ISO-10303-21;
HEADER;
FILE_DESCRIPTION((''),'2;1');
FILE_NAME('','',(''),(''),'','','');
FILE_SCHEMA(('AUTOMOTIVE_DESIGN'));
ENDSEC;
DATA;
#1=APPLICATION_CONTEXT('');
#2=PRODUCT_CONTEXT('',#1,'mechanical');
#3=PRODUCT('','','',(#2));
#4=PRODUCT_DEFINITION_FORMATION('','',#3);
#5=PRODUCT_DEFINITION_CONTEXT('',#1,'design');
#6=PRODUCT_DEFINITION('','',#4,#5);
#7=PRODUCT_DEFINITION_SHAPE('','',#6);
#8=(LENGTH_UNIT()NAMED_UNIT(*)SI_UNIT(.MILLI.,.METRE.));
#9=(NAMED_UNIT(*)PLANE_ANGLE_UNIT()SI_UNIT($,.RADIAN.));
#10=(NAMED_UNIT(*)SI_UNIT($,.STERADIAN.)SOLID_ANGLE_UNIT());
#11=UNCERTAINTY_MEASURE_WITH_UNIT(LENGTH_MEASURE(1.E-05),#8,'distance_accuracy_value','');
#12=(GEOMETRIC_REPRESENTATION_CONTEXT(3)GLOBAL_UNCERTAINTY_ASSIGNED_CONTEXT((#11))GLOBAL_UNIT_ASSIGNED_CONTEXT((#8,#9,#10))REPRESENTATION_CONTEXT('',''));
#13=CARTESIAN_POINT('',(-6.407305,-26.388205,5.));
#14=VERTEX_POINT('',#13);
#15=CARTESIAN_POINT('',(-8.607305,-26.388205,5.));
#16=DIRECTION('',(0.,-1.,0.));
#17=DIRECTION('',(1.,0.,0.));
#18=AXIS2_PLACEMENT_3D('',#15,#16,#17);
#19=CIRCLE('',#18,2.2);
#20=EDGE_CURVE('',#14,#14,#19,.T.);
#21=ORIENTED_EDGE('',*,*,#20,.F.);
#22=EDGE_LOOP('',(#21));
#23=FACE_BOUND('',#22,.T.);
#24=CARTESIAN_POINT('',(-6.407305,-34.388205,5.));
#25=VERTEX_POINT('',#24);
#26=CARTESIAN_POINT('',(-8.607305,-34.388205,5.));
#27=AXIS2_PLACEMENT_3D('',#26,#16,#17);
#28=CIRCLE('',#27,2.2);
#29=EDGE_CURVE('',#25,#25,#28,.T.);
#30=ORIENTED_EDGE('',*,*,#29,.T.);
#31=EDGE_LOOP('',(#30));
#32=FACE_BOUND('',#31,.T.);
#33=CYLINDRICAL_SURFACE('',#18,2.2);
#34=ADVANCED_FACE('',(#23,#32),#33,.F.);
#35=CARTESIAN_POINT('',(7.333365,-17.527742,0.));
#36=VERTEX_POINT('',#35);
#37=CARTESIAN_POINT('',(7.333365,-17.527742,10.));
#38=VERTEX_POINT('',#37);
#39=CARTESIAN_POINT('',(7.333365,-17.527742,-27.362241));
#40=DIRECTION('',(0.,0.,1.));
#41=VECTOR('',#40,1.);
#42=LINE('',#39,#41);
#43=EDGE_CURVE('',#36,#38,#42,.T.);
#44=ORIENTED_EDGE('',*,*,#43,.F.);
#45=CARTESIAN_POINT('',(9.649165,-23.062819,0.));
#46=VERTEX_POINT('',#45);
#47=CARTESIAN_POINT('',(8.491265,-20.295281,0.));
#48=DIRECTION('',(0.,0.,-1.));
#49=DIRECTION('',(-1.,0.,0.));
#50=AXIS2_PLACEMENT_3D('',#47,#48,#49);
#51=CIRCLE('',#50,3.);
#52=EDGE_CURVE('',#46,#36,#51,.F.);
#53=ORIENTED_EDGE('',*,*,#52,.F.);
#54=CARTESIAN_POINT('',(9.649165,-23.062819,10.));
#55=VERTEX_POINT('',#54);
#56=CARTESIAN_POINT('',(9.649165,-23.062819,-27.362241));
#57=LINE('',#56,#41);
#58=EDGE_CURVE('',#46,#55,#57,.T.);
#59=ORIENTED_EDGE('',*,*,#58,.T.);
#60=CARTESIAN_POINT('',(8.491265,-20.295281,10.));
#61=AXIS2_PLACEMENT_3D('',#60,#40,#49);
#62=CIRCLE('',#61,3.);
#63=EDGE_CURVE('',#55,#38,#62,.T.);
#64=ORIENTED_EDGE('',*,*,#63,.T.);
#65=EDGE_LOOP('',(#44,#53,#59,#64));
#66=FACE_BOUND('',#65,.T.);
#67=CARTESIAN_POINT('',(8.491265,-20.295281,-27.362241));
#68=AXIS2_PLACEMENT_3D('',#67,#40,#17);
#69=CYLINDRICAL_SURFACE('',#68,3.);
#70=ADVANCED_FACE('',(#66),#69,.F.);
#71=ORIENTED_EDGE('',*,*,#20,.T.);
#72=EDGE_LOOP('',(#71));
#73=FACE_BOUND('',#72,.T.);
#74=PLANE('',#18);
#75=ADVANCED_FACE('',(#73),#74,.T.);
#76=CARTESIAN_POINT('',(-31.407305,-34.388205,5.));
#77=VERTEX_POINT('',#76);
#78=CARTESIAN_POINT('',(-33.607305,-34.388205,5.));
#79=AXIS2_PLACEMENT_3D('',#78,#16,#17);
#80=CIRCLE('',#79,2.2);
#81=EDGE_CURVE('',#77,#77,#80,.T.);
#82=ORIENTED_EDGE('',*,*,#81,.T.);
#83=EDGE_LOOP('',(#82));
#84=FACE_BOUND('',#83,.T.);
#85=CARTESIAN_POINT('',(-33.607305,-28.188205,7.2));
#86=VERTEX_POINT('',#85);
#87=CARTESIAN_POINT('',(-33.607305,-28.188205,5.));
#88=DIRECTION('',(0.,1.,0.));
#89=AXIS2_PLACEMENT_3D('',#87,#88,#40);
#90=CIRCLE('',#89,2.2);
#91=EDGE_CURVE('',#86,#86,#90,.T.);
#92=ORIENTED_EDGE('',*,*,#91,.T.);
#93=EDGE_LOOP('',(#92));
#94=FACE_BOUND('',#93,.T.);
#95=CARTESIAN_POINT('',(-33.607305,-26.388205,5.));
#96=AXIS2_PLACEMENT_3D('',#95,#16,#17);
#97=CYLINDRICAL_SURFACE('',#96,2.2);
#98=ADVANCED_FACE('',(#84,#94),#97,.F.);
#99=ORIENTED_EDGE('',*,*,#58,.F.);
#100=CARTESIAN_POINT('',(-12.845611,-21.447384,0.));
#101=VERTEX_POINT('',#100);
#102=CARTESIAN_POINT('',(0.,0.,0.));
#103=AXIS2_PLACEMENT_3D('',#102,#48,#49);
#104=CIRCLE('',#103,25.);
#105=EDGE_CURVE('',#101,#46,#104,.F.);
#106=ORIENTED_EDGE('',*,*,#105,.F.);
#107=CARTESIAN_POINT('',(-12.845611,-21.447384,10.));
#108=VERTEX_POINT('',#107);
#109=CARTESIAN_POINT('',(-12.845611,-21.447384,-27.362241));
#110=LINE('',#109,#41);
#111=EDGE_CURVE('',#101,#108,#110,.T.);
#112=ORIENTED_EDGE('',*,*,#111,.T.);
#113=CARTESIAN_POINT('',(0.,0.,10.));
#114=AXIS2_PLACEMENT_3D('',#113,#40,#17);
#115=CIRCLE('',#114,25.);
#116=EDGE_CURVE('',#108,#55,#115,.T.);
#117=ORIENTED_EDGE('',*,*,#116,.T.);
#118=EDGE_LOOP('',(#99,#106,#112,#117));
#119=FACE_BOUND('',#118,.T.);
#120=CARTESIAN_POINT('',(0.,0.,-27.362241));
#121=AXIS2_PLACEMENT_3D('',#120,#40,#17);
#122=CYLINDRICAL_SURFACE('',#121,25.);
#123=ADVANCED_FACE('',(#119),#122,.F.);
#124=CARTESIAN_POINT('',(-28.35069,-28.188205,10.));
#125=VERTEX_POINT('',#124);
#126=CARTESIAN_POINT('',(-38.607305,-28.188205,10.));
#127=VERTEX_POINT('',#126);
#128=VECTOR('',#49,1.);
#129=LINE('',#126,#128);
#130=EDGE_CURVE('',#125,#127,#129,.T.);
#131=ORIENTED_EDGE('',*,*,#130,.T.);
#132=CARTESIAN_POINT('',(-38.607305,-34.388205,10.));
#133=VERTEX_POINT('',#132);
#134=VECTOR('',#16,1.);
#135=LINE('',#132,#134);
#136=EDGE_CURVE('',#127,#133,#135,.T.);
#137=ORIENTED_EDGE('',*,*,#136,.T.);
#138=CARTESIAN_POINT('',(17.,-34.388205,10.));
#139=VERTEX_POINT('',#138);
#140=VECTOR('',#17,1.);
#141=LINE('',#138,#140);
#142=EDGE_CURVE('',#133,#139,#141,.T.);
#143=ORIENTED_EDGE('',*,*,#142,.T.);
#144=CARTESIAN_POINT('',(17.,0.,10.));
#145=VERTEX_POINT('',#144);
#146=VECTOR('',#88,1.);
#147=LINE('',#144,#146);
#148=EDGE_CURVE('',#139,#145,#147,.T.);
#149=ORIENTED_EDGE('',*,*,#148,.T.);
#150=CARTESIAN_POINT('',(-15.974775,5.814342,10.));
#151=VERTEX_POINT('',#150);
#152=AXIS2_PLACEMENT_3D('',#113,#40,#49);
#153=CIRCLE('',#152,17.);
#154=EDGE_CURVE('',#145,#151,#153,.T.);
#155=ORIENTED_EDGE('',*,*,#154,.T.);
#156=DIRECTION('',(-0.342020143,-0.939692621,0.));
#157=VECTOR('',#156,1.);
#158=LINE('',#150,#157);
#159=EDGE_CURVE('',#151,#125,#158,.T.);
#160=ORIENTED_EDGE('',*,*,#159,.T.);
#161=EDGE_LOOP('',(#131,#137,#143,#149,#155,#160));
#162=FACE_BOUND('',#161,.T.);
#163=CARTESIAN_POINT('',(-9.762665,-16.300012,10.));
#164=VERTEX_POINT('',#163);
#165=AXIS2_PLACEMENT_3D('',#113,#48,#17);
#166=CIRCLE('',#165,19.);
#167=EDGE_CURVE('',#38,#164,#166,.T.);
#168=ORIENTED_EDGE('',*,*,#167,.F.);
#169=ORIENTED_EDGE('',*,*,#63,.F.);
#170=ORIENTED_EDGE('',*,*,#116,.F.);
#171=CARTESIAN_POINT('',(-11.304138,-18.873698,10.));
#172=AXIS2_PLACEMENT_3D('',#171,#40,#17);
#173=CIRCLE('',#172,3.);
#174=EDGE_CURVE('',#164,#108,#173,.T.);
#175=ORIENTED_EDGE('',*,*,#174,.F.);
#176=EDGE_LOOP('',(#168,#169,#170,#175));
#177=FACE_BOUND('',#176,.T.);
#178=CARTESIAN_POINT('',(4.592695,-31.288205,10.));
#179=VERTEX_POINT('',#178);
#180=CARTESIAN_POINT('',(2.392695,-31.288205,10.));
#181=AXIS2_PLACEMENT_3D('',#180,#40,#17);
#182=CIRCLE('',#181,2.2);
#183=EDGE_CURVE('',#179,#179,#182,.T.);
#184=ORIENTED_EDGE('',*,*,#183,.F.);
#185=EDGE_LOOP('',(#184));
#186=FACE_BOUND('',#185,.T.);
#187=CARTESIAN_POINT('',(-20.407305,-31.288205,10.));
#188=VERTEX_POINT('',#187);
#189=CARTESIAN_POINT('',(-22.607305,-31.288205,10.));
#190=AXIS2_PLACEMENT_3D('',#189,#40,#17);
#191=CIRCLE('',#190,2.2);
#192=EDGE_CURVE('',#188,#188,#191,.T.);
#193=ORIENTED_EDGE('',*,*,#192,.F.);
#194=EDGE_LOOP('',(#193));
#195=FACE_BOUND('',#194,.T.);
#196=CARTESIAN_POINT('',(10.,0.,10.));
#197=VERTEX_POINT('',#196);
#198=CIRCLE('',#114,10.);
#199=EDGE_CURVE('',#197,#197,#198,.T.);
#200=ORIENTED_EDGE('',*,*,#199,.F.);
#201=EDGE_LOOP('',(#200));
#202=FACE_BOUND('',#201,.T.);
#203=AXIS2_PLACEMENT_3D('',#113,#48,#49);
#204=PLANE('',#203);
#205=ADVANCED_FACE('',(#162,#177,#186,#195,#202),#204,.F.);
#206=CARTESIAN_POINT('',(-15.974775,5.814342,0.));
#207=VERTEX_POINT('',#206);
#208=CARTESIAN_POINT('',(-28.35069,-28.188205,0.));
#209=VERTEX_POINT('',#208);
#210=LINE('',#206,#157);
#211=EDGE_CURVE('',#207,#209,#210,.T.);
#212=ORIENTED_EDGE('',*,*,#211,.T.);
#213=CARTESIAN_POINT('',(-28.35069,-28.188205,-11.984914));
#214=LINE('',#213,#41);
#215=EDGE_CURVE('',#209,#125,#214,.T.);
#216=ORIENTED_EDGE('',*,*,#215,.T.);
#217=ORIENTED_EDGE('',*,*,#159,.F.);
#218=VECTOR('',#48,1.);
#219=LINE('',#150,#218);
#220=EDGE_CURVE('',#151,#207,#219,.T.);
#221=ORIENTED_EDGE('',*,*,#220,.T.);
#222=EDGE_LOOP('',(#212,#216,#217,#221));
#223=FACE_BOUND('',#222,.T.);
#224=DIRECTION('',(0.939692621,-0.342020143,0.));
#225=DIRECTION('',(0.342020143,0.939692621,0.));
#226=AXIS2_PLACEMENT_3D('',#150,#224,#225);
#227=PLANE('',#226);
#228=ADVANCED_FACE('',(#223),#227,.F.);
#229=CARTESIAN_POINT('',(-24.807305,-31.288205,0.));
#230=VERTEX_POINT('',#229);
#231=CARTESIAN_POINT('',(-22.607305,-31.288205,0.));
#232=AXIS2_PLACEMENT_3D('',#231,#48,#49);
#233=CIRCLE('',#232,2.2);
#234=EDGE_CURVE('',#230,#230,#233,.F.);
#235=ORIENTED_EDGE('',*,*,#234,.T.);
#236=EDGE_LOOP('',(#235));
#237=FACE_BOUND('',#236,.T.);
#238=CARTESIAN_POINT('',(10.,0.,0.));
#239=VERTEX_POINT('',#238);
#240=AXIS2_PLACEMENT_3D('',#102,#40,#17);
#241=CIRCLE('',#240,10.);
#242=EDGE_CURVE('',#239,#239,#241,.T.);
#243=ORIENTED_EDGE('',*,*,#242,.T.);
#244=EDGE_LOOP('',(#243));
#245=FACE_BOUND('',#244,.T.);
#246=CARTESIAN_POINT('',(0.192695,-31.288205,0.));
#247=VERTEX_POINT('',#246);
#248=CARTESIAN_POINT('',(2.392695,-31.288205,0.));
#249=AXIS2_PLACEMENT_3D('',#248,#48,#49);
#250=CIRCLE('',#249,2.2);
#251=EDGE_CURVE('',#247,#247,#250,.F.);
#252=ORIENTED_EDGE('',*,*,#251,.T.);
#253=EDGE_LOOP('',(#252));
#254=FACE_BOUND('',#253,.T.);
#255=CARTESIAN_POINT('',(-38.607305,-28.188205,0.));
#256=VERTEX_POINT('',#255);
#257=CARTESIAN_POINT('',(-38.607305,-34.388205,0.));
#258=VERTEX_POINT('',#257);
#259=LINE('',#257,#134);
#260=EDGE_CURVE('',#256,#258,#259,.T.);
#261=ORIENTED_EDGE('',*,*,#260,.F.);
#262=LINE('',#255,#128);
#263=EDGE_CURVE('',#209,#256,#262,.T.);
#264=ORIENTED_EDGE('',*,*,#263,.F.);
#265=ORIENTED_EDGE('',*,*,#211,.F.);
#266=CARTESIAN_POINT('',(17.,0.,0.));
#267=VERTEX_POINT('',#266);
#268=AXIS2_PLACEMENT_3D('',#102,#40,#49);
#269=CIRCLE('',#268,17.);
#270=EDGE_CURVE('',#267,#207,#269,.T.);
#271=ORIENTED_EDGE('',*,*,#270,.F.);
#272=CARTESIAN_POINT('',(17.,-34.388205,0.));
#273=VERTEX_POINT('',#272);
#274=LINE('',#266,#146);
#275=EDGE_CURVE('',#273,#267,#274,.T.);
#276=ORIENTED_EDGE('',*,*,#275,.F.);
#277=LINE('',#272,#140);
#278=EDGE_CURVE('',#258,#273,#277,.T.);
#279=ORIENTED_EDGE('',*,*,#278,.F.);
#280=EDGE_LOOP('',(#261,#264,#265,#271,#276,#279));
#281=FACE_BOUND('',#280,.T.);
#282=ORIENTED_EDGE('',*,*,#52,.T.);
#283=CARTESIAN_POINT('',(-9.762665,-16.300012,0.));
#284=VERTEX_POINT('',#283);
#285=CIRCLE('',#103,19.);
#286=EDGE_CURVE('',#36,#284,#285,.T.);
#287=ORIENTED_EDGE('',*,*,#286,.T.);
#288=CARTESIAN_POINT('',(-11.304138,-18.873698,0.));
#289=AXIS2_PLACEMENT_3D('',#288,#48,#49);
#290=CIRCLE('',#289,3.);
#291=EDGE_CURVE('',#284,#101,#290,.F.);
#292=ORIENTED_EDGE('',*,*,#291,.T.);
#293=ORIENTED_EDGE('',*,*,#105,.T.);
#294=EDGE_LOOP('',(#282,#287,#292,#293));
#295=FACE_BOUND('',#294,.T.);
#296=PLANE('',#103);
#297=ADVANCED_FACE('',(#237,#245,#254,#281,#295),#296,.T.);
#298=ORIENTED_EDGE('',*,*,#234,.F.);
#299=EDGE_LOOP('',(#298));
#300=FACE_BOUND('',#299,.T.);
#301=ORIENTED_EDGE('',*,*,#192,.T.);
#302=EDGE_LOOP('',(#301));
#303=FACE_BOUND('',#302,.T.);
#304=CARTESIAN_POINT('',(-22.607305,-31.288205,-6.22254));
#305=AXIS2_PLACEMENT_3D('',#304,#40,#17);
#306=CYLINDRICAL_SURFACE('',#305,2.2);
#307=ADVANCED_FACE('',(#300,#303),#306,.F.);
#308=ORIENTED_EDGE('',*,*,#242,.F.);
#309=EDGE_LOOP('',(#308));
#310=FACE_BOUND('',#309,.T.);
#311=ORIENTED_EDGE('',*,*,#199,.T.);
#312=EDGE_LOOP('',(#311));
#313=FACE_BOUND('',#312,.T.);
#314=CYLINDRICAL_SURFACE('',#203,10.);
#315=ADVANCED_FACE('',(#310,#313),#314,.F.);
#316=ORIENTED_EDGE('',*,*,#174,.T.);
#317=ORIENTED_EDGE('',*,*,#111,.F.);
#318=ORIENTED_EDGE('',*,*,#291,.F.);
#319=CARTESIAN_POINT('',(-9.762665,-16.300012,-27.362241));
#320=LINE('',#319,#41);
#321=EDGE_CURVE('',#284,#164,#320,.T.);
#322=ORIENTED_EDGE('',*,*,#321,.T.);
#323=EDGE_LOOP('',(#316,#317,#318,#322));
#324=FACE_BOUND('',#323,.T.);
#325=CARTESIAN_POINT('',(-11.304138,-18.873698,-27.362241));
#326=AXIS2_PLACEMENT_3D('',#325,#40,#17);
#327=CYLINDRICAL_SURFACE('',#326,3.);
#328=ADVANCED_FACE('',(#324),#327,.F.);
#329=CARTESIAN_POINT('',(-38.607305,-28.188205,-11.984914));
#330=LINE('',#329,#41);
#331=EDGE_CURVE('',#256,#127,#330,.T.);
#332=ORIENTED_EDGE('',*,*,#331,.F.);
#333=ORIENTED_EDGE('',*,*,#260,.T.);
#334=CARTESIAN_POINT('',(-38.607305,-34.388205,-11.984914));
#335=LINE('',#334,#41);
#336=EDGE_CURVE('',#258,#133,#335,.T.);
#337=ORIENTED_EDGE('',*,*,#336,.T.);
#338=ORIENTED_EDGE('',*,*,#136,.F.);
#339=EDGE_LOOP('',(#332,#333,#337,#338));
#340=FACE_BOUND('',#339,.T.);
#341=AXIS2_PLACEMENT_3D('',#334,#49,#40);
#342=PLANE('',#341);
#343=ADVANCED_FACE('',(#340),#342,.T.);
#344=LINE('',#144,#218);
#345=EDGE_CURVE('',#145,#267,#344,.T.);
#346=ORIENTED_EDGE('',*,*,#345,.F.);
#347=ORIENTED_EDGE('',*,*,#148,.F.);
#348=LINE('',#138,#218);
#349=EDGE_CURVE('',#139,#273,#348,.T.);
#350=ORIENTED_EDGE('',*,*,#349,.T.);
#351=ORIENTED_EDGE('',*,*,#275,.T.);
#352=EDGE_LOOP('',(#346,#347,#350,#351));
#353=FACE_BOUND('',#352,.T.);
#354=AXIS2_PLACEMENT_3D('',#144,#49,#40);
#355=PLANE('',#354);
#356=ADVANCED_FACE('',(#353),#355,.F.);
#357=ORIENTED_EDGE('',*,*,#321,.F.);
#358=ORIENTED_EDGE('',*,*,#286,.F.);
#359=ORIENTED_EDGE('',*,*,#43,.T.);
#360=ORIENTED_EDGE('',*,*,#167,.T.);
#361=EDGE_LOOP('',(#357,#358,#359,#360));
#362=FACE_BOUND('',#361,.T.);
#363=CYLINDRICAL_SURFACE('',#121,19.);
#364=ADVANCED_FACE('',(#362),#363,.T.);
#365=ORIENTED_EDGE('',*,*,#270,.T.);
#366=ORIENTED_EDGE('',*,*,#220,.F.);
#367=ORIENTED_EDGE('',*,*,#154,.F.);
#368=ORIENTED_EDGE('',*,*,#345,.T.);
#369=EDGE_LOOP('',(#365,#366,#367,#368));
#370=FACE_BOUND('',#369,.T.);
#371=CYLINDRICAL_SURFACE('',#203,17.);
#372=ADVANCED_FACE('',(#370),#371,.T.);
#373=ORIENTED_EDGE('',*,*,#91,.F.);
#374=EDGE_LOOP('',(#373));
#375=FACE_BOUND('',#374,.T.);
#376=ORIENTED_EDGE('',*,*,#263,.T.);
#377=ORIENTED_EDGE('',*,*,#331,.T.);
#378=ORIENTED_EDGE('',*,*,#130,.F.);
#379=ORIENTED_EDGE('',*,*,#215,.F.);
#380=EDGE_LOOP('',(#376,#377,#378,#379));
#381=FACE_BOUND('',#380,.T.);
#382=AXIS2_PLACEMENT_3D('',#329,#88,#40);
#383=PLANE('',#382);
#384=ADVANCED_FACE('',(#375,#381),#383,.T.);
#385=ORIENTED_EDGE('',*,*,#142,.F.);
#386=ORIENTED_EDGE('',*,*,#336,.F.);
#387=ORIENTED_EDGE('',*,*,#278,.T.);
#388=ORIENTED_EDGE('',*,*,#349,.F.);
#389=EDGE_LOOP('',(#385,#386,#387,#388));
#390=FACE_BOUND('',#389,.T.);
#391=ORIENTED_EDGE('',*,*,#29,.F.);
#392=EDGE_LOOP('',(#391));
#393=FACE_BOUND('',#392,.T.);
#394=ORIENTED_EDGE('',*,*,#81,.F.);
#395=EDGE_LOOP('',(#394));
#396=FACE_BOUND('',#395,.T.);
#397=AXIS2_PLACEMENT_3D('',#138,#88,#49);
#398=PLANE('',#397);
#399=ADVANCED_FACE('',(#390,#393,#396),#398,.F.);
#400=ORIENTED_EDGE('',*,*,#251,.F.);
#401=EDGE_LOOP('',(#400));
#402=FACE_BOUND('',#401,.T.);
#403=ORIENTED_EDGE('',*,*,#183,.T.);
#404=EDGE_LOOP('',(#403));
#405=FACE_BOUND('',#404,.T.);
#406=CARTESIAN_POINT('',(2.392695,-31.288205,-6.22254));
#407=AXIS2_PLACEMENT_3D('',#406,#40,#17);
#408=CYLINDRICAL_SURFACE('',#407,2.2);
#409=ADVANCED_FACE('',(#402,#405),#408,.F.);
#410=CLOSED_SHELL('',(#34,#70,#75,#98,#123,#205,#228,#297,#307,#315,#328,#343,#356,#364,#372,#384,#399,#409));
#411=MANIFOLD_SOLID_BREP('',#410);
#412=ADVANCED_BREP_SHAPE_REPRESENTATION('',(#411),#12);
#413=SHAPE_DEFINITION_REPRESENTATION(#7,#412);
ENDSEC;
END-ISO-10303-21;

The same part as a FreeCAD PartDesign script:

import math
import FreeCAD as App
import Part
import Sketcher

V = App.Vector
Q = App.Units.Quantity

doc = App.newDocument("Part")
body = doc.addObject("PartDesign::Body", "Body")

sketch1 = doc.addObject("Sketcher::SketchObject", "Sketch")
body.addObject(sketch1)
sketch1.AttachmentSupport = (doc.XY_Plane, [""])
sketch1.MapMode = "FlatFace"
sketch1.addGeometry(Part.LineSegment(V(17, -34, 0), V(17, 0, 0)), False)
sketch1.addGeometry(Part.ArcOfCircle(Part.Circle(V(0, 0, 0), V(0, 0, 1), 17), math.radians(0), math.radians(160)), False)
sketch1.addGeometry(Part.LineSegment(V(-16, 6, 0), V(-31, -34, 0)), False)
sketch1.addGeometry(Part.LineSegment(V(-31, -34, 0), V(17, -34, 0)), False)
sketch1.addGeometry(Part.Circle(V(0, 0, 0), V(0, 0, 1), 10), False)
sketch1.addConstraint(Sketcher.Constraint("Tangent", 0, 2, 1, 1))
sketch1.addConstraint(Sketcher.Constraint("Tangent", 1, 2, 2, 1))
sketch1.addConstraint(Sketcher.Constraint("Coincident", 2, 2, 3, 1))
sketch1.addConstraint(Sketcher.Constraint("Coincident", 3, 2, 0, 1))
sketch1.addConstraint(Sketcher.Constraint("Vertical", 0))
sketch1.addConstraint(Sketcher.Constraint("Horizontal", 3))
sketch1.addConstraint(Sketcher.Constraint("Coincident", 1, 3, -1, 1))
sketch1.addConstraint(Sketcher.Constraint("Coincident", 4, 3, -1, 1))
sketch1.addConstraint(Sketcher.Constraint("Diameter", 4, Q("20 mm")))
sketch1.addConstraint(Sketcher.Constraint("Radius", 1, Q("17 mm")))
sketch1.addConstraint(Sketcher.Constraint("Angle", 2, Q("-110 deg")))
sketch1.addConstraint(Sketcher.Constraint("DistanceX", 3, 1, 3, 2, Q("47.607305 mm")))
pad1 = doc.addObject("PartDesign::Pad", "Pad")
body.addObject(pad1)
pad1.Profile = sketch1
pad1.Length = 10

sketch2 = doc.addObject("Sketcher::SketchObject", "Sketch001")
body.addObject(sketch2)
sketch2.AttachmentSupport = (doc.XY_Plane, [""])
sketch2.MapMode = "FlatFace"
sketch2.AttachmentOffset = App.Placement(V(0, 0, 10), App.Rotation())
sketch2.addGeometry(Part.ArcOfCircle(Part.Circle(V(0, 0, 0), V(0, 0, 1), 19), math.radians(-121), math.radians(-67)), False)
sketch2.addGeometry(Part.ArcOfCircle(Part.Circle(V(-11.3, -18.9, 0), V(0, 0, 1), 3), math.radians(59), math.radians(239)), False)
sketch2.addGeometry(Part.ArcOfCircle(Part.Circle(V(0, 0, 0), V(0, 0, 1), 25), math.radians(-121), math.radians(-67)), False)
sketch2.addGeometry(Part.ArcOfCircle(Part.Circle(V(8.5, -20.3, 0), V(0, 0, 1), 3), math.radians(-67), math.radians(113)), False)
sketch2.addConstraint(Sketcher.Constraint("Tangent", 0, 1, 1, 1))
sketch2.addConstraint(Sketcher.Constraint("Tangent", 1, 2, 2, 1))
sketch2.addConstraint(Sketcher.Constraint("Tangent", 2, 2, 3, 1))
sketch2.addConstraint(Sketcher.Constraint("Tangent", 3, 2, 0, 2))
sketch2.addConstraint(Sketcher.Constraint("Coincident", 0, 3, -1, 1))
sketch2.addConstraint(Sketcher.Constraint("Coincident", 2, 3, -1, 1))
sketch2.addConstraint(Sketcher.Constraint("Radius", 0, Q("19 mm")))
sketch2.addConstraint(Sketcher.Constraint("Radius", 1, Q("3 mm")))
sketch2.addConstraint(Sketcher.Constraint("DistanceX", 3, 3, 2, 2, Q("1.1579 mm")))
sketch2.addConstraint(Sketcher.Constraint("DistanceY", 0, 1, -1, 1, Q("16.300012 mm")))
pocket1 = doc.addObject("PartDesign::Pocket", "Pocket")
body.addObject(pocket1)
pocket1.Profile = sketch2
pocket1.Length = 10

sketch3 = doc.addObject("Sketcher::SketchObject", "Sketch002")
body.addObject(sketch3)
sketch3.AttachmentSupport = (doc.XY_Plane, [""])
sketch3.MapMode = "FlatFace"
sketch3.AttachmentOffset = App.Placement(V(0, 0, 10), App.Rotation())
sketch3.addGeometry(Part.LineSegment(V(-39, -34, 0), V(-31, -34, 0)), False)
sketch3.addGeometry(Part.LineSegment(V(-31, -34, 0), V(-28, -28, 0)), False)
sketch3.addGeometry(Part.LineSegment(V(-28, -28, 0), V(-39, -28, 0)), False)
sketch3.addGeometry(Part.LineSegment(V(-39, -28, 0), V(-39, -34, 0)), False)
sketch3.addConstraint(Sketcher.Constraint("Coincident", 0, 2, 1, 1))
sketch3.addConstraint(Sketcher.Constraint("Coincident", 1, 2, 2, 1))
sketch3.addConstraint(Sketcher.Constraint("Coincident", 2, 2, 3, 1))
sketch3.addConstraint(Sketcher.Constraint("Coincident", 3, 2, 0, 1))
sketch3.addConstraint(Sketcher.Constraint("Horizontal", 0))
sketch3.addConstraint(Sketcher.Constraint("Horizontal", 2))
sketch3.addConstraint(Sketcher.Constraint("Vertical", 3))
sketch3.addConstraint(Sketcher.Constraint("DistanceX", 0, 1, 0, 2, Q("8 mm")))
sketch3.addConstraint(Sketcher.Constraint("Angle", 1, Q("70 deg")))
sketch3.addConstraint(Sketcher.Constraint("DistanceY", 3, 2, 3, 1, Q("6.2 mm")))
sketch3.addConstraint(Sketcher.Constraint("DistanceX", 1, 2, -1, 1, Q("28.35069 mm")))
sketch3.addConstraint(Sketcher.Constraint("DistanceY", 0, 2, -1, 1, Q("34.388205 mm")))
pad2 = doc.addObject("PartDesign::Pad", "Pad001")
body.addObject(pad2)
pad2.Profile = sketch3
pad2.Length = 10
pad2.Reversed = True

sketch4 = doc.addObject("Sketcher::SketchObject", "Sketch003")
body.addObject(sketch4)
sketch4.AttachmentSupport = (doc.XZ_Plane, [""])
sketch4.MapMode = "FlatFace"
sketch4.AttachmentOffset = App.Placement(V(0, 0, 34.388205), App.Rotation())
sketch4.addGeometry(Part.Circle(V(-33.6, 5, 0), V(0, 0, 1), 2.2), False)
sketch4.addGeometry(Part.Circle(V(-8.6, 5, 0), V(0, 0, 1), 2.2), False)
sketch4.addConstraint(Sketcher.Constraint("Equal", 0, 1))
sketch4.addConstraint(Sketcher.Constraint("Horizontal", 0, 3, 1, 3))
sketch4.addConstraint(Sketcher.Constraint("Diameter", 0, Q("4.4 mm")))
sketch4.addConstraint(Sketcher.Constraint("DistanceY", -1, 1, 0, 3, Q("5 mm")))
sketch4.addConstraint(Sketcher.Constraint("DistanceX", 0, 3, 1, 3, Q("25 mm")))
sketch4.addConstraint(Sketcher.Constraint("DistanceX", 0, 3, -1, 1, Q("33.607305 mm")))
pocket2 = doc.addObject("PartDesign::Pocket", "Pocket001")
body.addObject(pocket2)
pocket2.Profile = sketch4
pocket2.Length = 8

sketch5 = doc.addObject("Sketcher::SketchObject", "Sketch004")
body.addObject(sketch5)
sketch5.AttachmentSupport = (doc.XY_Plane, [""])
sketch5.MapMode = "FlatFace"
sketch5.AttachmentOffset = App.Placement(V(0, 0, 10), App.Rotation())
sketch5.addGeometry(Part.Circle(V(-22.6, -31.3, 0), V(0, 0, 1), 2.2), False)
sketch5.addGeometry(Part.Circle(V(2.4, -31.3, 0), V(0, 0, 1), 2.2), False)
sketch5.addConstraint(Sketcher.Constraint("Equal", 0, 1))
sketch5.addConstraint(Sketcher.Constraint("Horizontal", 0, 3, 1, 3))
sketch5.addConstraint(Sketcher.Constraint("Diameter", 0, Q("4.4 mm")))
sketch5.addConstraint(Sketcher.Constraint("DistanceX", 0, 3, 1, 3, Q("25 mm")))
sketch5.addConstraint(Sketcher.Constraint("DistanceX", 0, 3, -1, 1, Q("22.607305 mm")))
sketch5.addConstraint(Sketcher.Constraint("DistanceY", 0, 3, -1, 1, Q("31.288205 mm")))
pocket3 = doc.addObject("PartDesign::Pocket", "Pocket002")
body.addObject(pocket3)
pocket3.Profile = sketch5
pocket3.Length = 10

doc.recompute()
